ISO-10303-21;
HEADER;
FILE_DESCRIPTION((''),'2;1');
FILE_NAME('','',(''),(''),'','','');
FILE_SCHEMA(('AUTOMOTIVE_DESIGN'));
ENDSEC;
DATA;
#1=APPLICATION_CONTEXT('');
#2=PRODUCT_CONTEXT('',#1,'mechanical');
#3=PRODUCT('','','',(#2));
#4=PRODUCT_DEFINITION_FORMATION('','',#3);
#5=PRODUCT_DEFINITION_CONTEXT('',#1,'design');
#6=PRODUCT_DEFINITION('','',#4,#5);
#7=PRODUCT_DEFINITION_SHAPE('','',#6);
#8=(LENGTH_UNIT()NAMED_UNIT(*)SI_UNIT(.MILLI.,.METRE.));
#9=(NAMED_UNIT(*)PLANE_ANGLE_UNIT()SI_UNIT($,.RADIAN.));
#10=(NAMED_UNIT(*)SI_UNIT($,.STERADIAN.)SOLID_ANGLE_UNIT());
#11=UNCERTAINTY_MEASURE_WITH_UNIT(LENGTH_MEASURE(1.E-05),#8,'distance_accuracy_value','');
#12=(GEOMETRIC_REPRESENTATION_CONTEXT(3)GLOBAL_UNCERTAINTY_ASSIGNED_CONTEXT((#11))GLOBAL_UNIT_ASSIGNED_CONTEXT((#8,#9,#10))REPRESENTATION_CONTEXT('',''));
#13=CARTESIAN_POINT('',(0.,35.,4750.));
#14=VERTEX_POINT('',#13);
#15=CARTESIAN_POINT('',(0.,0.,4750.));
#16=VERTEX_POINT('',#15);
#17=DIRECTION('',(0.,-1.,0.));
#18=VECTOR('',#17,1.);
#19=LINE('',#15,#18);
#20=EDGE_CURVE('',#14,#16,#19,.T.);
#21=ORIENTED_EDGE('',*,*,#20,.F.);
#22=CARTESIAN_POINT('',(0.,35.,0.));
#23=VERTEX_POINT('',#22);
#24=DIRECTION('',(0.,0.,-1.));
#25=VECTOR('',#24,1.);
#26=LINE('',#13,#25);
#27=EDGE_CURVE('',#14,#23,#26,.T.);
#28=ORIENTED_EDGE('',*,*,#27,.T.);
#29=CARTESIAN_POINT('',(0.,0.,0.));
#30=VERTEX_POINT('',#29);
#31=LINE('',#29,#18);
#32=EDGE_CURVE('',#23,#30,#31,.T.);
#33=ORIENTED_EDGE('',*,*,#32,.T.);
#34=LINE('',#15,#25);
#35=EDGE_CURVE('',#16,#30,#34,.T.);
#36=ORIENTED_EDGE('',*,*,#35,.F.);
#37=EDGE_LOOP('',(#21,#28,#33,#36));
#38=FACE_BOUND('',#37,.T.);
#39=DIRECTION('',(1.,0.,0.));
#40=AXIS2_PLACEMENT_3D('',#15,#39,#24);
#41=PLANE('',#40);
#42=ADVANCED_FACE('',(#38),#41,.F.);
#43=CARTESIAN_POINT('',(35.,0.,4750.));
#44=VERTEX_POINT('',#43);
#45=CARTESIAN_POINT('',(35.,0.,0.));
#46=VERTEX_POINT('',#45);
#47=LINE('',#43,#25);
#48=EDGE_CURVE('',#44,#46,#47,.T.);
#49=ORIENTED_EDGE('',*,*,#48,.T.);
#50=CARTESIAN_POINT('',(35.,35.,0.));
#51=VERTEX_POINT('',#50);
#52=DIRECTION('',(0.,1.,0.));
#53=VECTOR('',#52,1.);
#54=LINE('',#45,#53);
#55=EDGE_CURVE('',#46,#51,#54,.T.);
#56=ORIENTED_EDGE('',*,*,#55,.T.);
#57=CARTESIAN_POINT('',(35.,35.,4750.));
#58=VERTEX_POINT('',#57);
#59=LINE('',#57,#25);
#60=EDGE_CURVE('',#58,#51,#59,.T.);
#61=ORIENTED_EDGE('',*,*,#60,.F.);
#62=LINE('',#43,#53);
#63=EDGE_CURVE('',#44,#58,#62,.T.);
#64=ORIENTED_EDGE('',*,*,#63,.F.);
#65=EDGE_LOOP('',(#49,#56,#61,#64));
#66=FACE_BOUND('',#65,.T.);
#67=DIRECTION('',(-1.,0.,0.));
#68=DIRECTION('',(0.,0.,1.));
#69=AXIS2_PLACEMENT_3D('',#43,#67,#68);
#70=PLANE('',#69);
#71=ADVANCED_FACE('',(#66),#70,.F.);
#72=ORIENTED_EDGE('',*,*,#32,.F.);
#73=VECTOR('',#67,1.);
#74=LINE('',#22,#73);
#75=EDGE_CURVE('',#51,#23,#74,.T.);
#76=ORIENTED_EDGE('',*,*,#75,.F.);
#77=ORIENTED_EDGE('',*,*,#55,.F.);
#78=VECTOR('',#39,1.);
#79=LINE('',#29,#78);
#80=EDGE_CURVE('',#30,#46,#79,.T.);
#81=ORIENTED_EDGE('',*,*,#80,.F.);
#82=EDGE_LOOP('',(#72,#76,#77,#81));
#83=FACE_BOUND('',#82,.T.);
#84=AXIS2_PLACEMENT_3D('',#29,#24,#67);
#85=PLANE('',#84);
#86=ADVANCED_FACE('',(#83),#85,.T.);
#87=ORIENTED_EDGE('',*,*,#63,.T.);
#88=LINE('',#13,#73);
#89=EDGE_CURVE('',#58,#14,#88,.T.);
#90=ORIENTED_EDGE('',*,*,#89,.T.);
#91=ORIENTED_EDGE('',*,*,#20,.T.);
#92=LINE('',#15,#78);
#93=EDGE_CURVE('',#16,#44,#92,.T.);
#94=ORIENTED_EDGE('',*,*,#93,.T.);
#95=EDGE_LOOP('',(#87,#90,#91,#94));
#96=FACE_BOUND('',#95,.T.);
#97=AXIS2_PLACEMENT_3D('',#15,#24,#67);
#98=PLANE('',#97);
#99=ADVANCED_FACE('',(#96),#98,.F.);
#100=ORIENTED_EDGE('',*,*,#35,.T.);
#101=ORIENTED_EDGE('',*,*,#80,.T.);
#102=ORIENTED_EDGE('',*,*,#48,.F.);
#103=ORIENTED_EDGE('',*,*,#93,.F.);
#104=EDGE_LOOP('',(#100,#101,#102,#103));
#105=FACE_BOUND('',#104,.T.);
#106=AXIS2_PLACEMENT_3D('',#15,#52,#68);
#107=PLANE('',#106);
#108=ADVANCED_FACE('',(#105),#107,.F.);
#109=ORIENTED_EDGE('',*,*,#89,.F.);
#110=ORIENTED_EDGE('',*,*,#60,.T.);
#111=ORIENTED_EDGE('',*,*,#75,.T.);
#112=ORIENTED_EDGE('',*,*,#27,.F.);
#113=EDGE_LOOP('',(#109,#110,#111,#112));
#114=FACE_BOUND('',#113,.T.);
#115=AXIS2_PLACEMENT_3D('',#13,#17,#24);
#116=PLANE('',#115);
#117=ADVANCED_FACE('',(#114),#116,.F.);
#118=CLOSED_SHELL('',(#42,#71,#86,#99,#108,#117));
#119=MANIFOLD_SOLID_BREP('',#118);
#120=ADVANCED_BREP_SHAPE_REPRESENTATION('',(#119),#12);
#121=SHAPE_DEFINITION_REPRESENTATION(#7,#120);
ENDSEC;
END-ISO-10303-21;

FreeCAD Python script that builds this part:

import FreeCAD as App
import Part
import Sketcher

V = App.Vector
Q = App.Units.Quantity

doc = App.newDocument("Part")
body = doc.addObject("PartDesign::Body", "Body")

# Sketch on XY plane
sketch1 = body.newObject("Sketcher::SketchObject", "Sketch")
sketch1.AttachmentSupport = (doc.getObject("XY_Plane"), [""])
sketch1.MapMode = "FlatFace"
sketch1.addGeometry([
    Part.LineSegment(V(0, 35, 0), V(0, 0, 0)),
    Part.LineSegment(V(0, 0, 0), V(35, 0, 0)),
    Part.LineSegment(V(35, 0, 0), V(35, 35, 0)),
    Part.LineSegment(V(35, 35, 0), V(0, 35, 0)),
], False)
sketch1.addConstraint([
    Sketcher.Constraint("Coincident", 0, 2, 1, 1),
    Sketcher.Constraint("Coincident", 1, 2, 2, 1),
    Sketcher.Constraint("Coincident", 2, 2, 3, 1),
    Sketcher.Constraint("Coincident", 3, 2, 0, 1),
    Sketcher.Constraint("Vertical", 0),
    Sketcher.Constraint("Horizontal", 1),
    Sketcher.Constraint("Vertical", 2),
    Sketcher.Constraint("Horizontal", 3),
    Sketcher.Constraint("Coincident", 0, 2, -1, 1),
    Sketcher.Constraint("Equal", 3, 0),
    Sketcher.Constraint("DistanceX", 1, 1, 1, 2, Q("35 mm")),
])
pad1 = body.newObject("PartDesign::Pad", "Pad")
pad1.Profile = sketch1
pad1.Length = 4750

doc.recompute()
